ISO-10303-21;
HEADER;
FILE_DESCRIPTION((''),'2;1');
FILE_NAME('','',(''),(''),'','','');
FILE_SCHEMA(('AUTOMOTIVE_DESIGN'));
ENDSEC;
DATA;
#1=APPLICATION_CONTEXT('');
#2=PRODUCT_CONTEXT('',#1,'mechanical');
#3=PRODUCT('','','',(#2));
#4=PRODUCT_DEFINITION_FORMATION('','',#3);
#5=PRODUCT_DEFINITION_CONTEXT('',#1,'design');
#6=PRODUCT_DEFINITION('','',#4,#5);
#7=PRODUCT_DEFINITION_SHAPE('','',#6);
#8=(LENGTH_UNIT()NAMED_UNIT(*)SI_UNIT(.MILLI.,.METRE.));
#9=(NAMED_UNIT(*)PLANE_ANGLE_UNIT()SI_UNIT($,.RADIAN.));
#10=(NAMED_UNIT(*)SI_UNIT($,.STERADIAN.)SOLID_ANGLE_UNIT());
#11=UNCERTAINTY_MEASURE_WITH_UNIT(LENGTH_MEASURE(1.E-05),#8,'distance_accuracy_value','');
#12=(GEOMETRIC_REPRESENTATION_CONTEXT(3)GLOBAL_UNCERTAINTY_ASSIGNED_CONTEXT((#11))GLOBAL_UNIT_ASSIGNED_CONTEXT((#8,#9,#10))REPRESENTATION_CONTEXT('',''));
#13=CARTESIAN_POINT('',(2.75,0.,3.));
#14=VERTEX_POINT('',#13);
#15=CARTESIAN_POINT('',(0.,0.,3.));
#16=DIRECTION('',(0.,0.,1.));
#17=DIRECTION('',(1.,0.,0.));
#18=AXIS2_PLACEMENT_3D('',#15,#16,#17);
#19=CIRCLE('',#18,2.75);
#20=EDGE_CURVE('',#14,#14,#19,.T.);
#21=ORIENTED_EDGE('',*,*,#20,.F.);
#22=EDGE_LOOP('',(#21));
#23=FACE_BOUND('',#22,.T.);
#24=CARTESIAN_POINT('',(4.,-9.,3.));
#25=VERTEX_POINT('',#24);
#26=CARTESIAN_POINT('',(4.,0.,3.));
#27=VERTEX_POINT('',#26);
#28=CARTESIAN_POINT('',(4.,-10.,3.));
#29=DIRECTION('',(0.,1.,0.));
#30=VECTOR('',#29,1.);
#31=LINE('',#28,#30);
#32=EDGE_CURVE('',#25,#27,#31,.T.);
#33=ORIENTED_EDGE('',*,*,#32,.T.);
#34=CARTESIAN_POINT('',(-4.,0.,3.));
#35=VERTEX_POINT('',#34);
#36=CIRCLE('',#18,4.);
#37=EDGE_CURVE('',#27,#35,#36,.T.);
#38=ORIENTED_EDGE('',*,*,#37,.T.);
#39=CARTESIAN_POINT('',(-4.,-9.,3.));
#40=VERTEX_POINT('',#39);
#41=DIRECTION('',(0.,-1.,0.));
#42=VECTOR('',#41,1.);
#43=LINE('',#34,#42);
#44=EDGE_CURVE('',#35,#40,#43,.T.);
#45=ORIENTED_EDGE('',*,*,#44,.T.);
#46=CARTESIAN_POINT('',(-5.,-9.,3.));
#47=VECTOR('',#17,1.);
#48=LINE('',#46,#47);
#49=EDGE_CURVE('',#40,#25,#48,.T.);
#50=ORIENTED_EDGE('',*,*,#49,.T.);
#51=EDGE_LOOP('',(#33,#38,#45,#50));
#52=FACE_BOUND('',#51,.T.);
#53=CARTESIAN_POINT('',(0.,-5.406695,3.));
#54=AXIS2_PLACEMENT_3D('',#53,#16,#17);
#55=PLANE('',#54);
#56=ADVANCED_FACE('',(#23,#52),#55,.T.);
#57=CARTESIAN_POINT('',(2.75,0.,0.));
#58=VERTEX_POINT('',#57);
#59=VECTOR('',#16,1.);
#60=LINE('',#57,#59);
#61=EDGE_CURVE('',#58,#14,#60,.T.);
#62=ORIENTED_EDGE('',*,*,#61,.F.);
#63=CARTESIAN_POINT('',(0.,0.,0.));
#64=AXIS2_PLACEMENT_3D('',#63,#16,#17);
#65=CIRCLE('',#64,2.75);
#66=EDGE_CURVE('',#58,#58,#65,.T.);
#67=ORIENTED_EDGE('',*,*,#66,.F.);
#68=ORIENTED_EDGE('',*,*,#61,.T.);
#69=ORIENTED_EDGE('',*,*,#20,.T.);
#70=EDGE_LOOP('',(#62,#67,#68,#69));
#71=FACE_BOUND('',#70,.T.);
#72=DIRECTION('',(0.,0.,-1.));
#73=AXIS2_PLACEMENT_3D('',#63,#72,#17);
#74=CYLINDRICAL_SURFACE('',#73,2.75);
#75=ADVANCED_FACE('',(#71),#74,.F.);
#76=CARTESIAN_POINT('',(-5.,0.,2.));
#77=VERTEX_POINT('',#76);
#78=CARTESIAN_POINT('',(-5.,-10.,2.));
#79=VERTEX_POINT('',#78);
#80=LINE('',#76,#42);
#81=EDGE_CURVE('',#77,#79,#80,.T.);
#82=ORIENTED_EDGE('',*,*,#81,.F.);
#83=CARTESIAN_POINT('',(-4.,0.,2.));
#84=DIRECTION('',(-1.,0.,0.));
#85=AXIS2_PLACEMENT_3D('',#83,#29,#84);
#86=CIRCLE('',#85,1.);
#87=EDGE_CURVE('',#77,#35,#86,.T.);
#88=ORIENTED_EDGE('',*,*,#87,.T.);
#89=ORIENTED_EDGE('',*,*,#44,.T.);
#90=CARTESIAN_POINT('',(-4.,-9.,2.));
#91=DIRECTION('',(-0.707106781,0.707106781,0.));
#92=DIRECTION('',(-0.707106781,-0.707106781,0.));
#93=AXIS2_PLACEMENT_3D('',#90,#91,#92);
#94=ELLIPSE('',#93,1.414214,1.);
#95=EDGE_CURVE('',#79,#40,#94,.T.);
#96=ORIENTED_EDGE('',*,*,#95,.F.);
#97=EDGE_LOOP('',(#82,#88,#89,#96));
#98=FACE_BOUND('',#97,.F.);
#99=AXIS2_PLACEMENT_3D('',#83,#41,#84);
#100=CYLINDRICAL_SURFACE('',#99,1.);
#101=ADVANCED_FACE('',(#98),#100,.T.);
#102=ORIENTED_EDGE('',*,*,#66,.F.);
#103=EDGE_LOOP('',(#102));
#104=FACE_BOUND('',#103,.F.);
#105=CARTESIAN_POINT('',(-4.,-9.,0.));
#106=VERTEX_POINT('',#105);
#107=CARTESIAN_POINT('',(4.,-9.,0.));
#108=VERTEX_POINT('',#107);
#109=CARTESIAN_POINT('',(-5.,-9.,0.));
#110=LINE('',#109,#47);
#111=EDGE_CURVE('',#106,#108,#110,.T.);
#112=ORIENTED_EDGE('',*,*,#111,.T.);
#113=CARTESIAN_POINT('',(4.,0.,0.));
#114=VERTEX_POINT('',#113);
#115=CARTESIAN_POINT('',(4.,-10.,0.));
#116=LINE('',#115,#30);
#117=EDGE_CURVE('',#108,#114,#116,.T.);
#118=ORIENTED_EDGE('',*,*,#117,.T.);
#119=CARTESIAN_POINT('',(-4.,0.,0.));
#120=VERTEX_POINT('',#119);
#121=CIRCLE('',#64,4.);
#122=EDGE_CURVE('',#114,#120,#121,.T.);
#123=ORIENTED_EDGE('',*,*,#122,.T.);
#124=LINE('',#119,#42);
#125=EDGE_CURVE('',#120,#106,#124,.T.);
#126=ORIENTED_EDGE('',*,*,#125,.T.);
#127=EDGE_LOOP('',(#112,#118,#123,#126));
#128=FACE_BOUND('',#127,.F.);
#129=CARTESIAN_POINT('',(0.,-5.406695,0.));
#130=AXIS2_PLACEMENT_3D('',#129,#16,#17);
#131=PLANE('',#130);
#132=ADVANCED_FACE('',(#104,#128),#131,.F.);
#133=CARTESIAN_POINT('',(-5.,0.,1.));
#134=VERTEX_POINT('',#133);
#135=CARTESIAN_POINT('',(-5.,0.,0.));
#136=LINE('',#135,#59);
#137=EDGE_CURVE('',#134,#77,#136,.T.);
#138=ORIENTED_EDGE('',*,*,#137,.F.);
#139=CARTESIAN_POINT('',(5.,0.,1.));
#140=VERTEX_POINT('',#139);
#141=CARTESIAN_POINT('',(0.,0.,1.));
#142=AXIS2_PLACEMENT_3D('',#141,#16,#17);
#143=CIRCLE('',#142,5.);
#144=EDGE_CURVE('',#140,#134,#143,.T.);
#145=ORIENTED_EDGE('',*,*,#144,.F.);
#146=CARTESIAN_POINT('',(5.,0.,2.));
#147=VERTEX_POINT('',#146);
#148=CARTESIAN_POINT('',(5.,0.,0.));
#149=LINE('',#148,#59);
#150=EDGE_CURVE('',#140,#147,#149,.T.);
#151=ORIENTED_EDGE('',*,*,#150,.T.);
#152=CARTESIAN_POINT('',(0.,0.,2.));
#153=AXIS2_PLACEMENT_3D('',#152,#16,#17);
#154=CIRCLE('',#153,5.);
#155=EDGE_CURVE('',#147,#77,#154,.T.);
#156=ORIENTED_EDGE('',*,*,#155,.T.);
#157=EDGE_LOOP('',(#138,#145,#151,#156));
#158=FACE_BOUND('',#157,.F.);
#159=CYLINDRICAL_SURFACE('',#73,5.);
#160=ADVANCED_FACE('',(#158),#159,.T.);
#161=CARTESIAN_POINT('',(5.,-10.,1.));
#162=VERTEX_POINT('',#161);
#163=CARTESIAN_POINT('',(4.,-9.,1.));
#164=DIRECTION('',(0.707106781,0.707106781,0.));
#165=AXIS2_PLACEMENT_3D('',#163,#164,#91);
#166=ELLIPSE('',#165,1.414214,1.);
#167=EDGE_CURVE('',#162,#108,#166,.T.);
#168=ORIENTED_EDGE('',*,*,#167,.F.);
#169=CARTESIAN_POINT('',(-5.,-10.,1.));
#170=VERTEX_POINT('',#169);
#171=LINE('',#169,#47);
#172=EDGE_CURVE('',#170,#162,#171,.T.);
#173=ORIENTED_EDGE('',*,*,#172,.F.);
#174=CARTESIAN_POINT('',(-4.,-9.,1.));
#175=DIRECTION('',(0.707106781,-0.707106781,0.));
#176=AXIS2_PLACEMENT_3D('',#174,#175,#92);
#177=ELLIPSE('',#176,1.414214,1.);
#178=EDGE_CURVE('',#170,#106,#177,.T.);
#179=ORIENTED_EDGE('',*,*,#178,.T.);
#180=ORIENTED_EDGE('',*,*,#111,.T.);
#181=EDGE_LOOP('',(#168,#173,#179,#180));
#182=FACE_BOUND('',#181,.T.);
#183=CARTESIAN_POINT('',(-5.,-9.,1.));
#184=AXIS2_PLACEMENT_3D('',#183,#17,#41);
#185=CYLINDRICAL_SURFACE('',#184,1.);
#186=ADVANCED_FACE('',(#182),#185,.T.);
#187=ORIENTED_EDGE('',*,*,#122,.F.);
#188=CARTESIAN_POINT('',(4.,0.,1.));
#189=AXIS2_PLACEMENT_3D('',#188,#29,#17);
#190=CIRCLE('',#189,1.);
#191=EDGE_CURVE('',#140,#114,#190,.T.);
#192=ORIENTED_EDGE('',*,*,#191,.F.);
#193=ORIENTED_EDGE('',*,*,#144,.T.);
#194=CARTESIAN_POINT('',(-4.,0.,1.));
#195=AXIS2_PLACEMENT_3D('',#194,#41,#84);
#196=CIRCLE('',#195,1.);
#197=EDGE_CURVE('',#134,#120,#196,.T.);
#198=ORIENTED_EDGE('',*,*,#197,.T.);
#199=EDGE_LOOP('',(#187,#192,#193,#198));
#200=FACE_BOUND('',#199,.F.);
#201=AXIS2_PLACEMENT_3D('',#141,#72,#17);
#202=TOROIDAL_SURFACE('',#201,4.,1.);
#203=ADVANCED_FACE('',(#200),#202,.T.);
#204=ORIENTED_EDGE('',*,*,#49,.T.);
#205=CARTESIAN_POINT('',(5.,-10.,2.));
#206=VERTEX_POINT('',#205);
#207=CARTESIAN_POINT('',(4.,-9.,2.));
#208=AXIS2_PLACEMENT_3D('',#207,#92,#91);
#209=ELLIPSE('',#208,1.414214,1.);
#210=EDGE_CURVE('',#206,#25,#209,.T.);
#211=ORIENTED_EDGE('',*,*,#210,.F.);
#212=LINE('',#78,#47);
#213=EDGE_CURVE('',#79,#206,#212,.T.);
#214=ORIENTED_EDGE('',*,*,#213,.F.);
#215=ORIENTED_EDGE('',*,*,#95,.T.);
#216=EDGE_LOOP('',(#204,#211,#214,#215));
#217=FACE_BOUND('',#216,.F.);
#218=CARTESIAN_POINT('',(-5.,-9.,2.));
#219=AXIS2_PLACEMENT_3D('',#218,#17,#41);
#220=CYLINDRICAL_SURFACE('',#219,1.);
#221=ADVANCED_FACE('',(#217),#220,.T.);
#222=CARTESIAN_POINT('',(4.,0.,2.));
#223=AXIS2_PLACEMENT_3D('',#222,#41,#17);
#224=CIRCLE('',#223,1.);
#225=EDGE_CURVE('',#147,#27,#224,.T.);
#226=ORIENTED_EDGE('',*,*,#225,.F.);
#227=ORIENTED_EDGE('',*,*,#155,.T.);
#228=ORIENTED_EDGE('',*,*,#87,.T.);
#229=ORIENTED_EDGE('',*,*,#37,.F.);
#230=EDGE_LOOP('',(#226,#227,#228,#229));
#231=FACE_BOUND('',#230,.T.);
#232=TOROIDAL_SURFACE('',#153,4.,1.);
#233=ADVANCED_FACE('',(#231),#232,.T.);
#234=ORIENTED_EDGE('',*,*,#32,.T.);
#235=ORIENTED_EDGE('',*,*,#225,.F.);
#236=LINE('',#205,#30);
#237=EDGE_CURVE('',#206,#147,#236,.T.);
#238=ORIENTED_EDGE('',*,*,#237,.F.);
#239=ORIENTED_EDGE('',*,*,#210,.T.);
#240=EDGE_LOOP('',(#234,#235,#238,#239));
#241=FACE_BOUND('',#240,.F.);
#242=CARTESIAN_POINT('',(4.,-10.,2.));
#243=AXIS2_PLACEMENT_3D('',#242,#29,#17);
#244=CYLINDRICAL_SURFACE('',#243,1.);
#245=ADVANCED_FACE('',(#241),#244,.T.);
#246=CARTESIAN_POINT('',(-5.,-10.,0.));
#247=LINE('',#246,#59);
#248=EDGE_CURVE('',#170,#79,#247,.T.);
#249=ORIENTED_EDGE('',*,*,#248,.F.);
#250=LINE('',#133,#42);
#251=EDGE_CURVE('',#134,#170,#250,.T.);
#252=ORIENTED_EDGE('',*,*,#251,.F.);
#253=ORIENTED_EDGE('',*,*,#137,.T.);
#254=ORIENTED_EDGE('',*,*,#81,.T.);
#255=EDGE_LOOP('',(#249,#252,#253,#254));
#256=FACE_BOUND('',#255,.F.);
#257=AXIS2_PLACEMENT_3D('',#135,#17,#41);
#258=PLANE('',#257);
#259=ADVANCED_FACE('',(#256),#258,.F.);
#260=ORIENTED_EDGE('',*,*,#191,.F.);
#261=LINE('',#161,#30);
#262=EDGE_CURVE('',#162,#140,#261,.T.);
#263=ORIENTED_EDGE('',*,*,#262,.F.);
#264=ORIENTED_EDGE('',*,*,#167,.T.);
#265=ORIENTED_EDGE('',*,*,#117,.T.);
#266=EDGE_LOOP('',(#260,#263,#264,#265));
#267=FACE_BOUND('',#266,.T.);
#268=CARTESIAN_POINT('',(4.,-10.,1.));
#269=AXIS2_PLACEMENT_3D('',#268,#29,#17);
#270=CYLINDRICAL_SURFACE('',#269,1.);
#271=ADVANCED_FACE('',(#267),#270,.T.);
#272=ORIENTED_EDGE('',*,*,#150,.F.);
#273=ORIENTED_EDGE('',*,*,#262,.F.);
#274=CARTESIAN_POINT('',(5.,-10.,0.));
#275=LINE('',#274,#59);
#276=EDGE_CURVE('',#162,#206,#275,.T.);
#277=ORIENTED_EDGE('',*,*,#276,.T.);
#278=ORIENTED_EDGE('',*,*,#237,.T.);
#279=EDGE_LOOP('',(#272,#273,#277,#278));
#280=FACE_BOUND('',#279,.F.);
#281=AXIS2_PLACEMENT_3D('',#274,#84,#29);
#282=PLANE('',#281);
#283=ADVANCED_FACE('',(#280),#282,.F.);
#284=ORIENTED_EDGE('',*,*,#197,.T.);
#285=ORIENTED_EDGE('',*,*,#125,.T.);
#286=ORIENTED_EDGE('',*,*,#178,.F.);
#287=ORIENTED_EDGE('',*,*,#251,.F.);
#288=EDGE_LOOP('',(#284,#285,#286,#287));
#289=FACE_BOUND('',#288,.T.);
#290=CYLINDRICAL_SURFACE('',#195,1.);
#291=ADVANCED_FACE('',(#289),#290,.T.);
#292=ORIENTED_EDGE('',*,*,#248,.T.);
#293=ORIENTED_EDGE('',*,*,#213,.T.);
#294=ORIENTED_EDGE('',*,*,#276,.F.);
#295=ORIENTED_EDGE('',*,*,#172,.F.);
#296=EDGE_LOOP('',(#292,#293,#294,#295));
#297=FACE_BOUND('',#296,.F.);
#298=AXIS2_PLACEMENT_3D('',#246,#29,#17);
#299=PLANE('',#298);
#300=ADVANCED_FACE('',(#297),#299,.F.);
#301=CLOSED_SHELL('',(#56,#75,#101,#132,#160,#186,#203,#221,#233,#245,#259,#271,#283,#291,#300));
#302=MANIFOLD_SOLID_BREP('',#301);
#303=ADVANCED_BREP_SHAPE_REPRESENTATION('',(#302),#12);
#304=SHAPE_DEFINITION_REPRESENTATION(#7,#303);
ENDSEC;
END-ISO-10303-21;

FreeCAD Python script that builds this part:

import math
import FreeCAD as App
import Part
import Sketcher

V = App.Vector


def edges_at(feature, points):
    """Names of the edges that pass closest to the given points."""
    edges = feature.Shape.Edges
    near = lambda p: min(range(len(edges)), key=lambda i: edges[i].distToShape(Part.Vertex(*p))[0])
    return sorted({f"Edge{near(p) + 1}" for p in points})

doc = App.newDocument("Part")
params = doc.addObject("Spreadsheet::Sheet", "Params")
for row, (alias, value) in enumerate([
    ("sketch1_radius", "5 mm"),
    ("sketch1_diameter", "5.5 mm"),
    ("pad1_length", "3 mm"),
    ("fillet_radius", "1 mm"),
], start=1):
    params.set(f"A{row}", alias)
    params.set(f"B{row}", "=" + value)
    params.setAlias(f"B{row}", alias)

body = doc.addObject("PartDesign::Body", "Body")

sketch1 = doc.addObject("Sketcher::SketchObject", "Sketch")
body.addObject(sketch1)
sketch1.AttachmentSupport = (doc.XY_Plane, [""])
sketch1.MapMode = "FlatFace"
sketch1.addGeometry([
    Part.LineSegment(V(5, -10, 0), V(5, 0, 0)),
    Part.ArcOfCircle(Part.Circle(V(0, 0, 0), V(0, 0, 1), 5), math.radians(0), math.radians(180)),
    Part.LineSegment(V(-5, 0, 0), V(-5, -10, 0)),
    Part.LineSegment(V(-5, -10, 0), V(5, -10, 0)),
    Part.Circle(V(0, 0, 0), V(0, 0, 1), 2.8),
], False)
sketch1.addConstraint([
    Sketcher.Constraint("Tangent", 0, 2, 1, 1),
    Sketcher.Constraint("Tangent", 1, 2, 2, 1),
    Sketcher.Constraint("Coincident", 2, 2, 3, 1),
    Sketcher.Constraint("Coincident", 3, 2, 0, 1),
    Sketcher.Constraint("Vertical", 0),
    Sketcher.Constraint("Vertical", 2),
    Sketcher.Constraint("Horizontal", 3),
    Sketcher.Constraint("Coincident", 1, 3, -1, 1),
    Sketcher.Constraint("Coincident", 4, 3, -1, 1),
    Sketcher.Constraint("Equal", 3, 0),
    Sketcher.Constraint("Radius", 1, 5.0),
    Sketcher.Constraint("Diameter", 4, 5.5),
])
sketch1.setExpression("Constraints[10]", "Params.sketch1_radius")
sketch1.setExpression("Constraints[11]", "Params.sketch1_diameter")
pad1 = doc.addObject("PartDesign::Pad", "Pad")
body.addObject(pad1)
pad1.Profile = sketch1
pad1.setExpression("Length", "Params.pad1_length")
doc.recompute()

fillet = doc.addObject("PartDesign::Fillet", "Fillet")
body.addObject(fillet)
fillet.Base = (pad1, edges_at(pad1, [
    (5, -5, 0),
    (5, -5, 3),
    (0, -10, 3),
    (-5, 0, 1.5),
    (-5, -5, 0),
    (-5, -5, 3),
    (0, -10, 0),
]))
fillet.setExpression("Radius", "Params.fillet_radius")

doc.recompute()
